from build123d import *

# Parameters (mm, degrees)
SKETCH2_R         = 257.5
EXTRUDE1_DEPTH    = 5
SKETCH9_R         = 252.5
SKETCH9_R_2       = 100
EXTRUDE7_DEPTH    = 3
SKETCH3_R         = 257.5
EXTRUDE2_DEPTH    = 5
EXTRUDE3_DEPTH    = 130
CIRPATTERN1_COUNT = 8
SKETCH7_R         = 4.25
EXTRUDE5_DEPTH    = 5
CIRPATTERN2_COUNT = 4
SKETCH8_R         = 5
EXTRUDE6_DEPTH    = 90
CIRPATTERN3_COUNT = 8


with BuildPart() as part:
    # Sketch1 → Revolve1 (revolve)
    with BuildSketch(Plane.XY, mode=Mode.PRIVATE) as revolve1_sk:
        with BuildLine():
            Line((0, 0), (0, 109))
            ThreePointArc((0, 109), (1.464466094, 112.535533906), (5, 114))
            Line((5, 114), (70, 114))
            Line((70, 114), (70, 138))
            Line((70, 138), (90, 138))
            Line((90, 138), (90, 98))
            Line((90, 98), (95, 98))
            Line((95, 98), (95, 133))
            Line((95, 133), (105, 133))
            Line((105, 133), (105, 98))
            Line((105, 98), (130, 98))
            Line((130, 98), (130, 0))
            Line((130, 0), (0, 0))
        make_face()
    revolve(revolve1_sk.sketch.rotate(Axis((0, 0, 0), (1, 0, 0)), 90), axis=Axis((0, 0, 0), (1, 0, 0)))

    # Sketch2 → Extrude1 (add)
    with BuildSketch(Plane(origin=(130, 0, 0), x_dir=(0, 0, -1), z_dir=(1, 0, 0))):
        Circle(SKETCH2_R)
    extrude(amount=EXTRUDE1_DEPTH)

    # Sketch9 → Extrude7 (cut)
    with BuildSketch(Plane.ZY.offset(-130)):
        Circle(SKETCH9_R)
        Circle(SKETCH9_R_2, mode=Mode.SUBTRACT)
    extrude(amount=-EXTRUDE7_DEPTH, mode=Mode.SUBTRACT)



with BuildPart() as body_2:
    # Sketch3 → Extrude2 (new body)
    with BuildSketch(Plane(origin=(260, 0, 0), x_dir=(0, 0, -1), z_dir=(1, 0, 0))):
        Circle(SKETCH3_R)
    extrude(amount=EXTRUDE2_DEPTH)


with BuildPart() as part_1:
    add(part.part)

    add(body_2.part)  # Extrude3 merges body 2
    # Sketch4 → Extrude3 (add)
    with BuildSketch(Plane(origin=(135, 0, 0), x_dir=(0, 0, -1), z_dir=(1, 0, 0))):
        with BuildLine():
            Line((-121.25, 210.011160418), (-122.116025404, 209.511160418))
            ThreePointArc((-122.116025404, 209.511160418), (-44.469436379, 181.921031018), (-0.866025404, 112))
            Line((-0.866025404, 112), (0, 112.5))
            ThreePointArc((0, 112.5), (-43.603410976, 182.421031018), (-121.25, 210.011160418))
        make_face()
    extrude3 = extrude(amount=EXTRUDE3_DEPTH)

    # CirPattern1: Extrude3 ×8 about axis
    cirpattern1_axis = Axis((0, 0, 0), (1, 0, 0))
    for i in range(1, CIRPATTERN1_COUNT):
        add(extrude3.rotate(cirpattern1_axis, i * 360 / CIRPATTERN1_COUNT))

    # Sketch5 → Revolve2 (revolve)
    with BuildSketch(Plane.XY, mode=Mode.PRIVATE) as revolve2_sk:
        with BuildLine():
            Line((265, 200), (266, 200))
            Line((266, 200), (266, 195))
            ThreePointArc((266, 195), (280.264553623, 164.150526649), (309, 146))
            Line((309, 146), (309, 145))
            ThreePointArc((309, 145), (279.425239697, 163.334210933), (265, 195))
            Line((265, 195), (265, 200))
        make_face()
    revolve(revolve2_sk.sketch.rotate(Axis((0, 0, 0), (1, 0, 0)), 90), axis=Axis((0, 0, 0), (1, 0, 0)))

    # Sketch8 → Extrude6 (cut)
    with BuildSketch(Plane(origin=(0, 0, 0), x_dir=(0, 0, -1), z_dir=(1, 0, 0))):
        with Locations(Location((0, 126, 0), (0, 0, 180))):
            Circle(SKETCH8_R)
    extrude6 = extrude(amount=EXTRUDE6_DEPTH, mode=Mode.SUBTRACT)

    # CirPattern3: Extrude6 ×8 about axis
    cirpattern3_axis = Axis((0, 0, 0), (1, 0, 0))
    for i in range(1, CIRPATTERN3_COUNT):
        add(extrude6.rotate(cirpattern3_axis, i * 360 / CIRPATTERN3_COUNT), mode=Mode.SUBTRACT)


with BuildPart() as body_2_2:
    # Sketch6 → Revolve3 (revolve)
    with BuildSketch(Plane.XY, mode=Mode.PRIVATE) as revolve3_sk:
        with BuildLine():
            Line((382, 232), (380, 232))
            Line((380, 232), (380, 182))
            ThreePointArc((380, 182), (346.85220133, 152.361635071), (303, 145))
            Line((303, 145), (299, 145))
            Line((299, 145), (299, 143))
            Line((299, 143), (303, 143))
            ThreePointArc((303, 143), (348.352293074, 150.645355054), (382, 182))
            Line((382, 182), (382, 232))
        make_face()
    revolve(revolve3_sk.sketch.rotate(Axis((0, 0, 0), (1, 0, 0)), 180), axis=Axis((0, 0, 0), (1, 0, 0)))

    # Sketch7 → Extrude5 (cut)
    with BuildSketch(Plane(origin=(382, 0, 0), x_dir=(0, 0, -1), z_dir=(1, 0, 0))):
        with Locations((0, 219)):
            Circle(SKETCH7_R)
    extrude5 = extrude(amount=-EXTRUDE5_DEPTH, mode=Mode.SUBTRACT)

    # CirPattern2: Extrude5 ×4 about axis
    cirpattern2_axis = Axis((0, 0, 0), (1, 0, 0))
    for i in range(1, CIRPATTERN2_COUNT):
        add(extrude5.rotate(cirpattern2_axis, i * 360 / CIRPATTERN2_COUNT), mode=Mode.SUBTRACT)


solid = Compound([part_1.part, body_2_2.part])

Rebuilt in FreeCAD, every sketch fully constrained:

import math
import FreeCAD as App
import Part
import Sketcher

V = App.Vector
Q = App.Units.Quantity

doc = App.newDocument("Part")
body = doc.addObject("PartDesign::Body", "Body")

# Sketch on XY plane
sketch1 = body.newObject("Sketcher::SketchObject", "Sketch")
sketch1.AttachmentSupport = (doc.getObject("XY_Plane"), [""])
sketch1.MapMode = "FlatFace"
sketch1.addGeometry([
    Part.LineSegment(V(0, 109, 0), V(0, 0, 0)),  # 0
    Part.LineSegment(V(0, 0, 0), V(130, 0, 0)),  # 1
    Part.LineSegment(V(130, 0, 0), V(130, 98, 0)),  # 2
    Part.LineSegment(V(130, 98, 0), V(105, 98, 0)),  # 3
    Part.LineSegment(V(105, 98, 0), V(105, 133, 0)),  # 4
    Part.LineSegment(V(105, 133, 0), V(95, 133, 0)),  # 5
    Part.LineSegment(V(95, 133, 0), V(95, 98, 0)),  # 6
    Part.LineSegment(V(95, 98, 0), V(90, 98, 0)),  # 7
    Part.LineSegment(V(90, 98, 0), V(90, 138, 0)),  # 8
    Part.LineSegment(V(90, 138, 0), V(70, 138, 0)),  # 9
    Part.LineSegment(V(70, 138, 0), V(70, 114, 0)),  # 10
    Part.LineSegment(V(70, 114, 0), V(5, 114, 0)),  # 11
    Part.ArcOfCircle(Part.Circle(V(5, 109, 0), V(0, 0, 1), 5), math.radians(90), math.radians(180)),  # 12
], False)
sketch1.addConstraint([
    Sketcher.Constraint("Coincident", 0, 2, 1, 1),
    Sketcher.Constraint("Coincident", 1, 2, 2, 1),
    Sketcher.Constraint("Coincident", 2, 2, 3, 1),
    Sketcher.Constraint("Coincident", 3, 2, 4, 1),
    Sketcher.Constraint("Coincident", 4, 2, 5, 1),
    Sketcher.Constraint("Coincident", 5, 2, 6, 1),
    Sketcher.Constraint("Coincident", 6, 2, 7, 1),
    Sketcher.Constraint("Coincident", 7, 2, 8, 1),
    Sketcher.Constraint("Coincident", 8, 2, 9, 1),
    Sketcher.Constraint("Coincident", 9, 2, 10, 1),
    Sketcher.Constraint("Coincident", 10, 2, 11, 1),
    Sketcher.Constraint("Tangent", 11, 2, 12, 1),
    Sketcher.Constraint("Tangent", 12, 2, 0, 1),
    Sketcher.Constraint("Vertical", 0),
    Sketcher.Constraint("Horizontal", 1),
    Sketcher.Constraint("Vertical", 2),
    Sketcher.Constraint("Horizontal", 3),
    Sketcher.Constraint("Vertical", 4),
    Sketcher.Constraint("Horizontal", 5),
    Sketcher.Constraint("Vertical", 6),
    Sketcher.Constraint("Horizontal", 7),
    Sketcher.Constraint("Vertical", 8),
    Sketcher.Constraint("Horizontal", 9),
    Sketcher.Constraint("Vertical", 10),
    Sketcher.Constraint("Horizontal", 11),
    Sketcher.Constraint("Coincident", 0, 2, -1, 1),
    Sketcher.Constraint("Horizontal", 3, 2, 6, 2),
    Sketcher.Constraint("Radius", 12, Q("5 mm")),
    Sketcher.Constraint("DistanceX", 1, 1, 1, 2, Q("130 mm")),
    Sketcher.Constraint("DistanceX", 3, 2, 3, 1, Q("25 mm")),
    Sketcher.Constraint("DistanceX", 5, 2, 5, 1, Q("10 mm")),
    Sketcher.Constraint("DistanceX", 7, 2, 7, 1, Q("5 mm")),
    Sketcher.Constraint("DistanceX", 9, 2, 9, 1, Q("20 mm")),
    Sketcher.Constraint("DistanceY", 0, 2, 0, 1, Q("109 mm")),
    Sketcher.Constraint("DistanceY", 2, 1, 2, 2, Q("98 mm")),
    Sketcher.Constraint("DistanceY", 4, 1, 4, 2, Q("35 mm")),
    Sketcher.Constraint("DistanceY", 8, 1, 8, 2, Q("40 mm")),
])
revolution = body.newObject("PartDesign::Revolution", "Revolution")
revolution.Profile = sketch1
revolution.ReferenceAxis = (sketch1, ["H_Axis"])
revolution.Angle = 360

# Sketch on YZ plane
sketch2 = body.newObject("Sketcher::SketchObject", "Sketch001")
sketch2.AttachmentSupport = (doc.getObject("YZ_Plane"), [""])
sketch2.MapMode = "FlatFace"
sketch2.AttachmentOffset = App.Placement(V(0, 0, 130), App.Rotation())
sketch2.addGeometry(Part.Circle(V(0, 0, 0), V(0, 0, 1), 258), False)
sketch2.addConstraint([
    Sketcher.Constraint("Coincident", 0, 3, -1, 1),
    Sketcher.Constraint("Diameter", 0, Q("515 mm")),
])
pad1 = body.newObject("PartDesign::Pad", "Pad")
pad1.Profile = sketch2
pad1.Length = 5

# Sketch on YZ plane
sketch3 = body.newObject("Sketcher::SketchObject", "Sketch002")
sketch3.AttachmentSupport = (doc.getObject("YZ_Plane"), [""])
sketch3.MapMode = "FlatFace"
sketch3.AttachmentOffset = App.Placement(V(0, 0, 130), App.Rotation())
sketch3.addGeometry([
    Part.Circle(V(0, 0, 0), V(0, 0, 1), 252),
    Part.Circle(V(0, 0, 0), V(0, 0, 1), 100),
], False)
sketch3.addConstraint([
    Sketcher.Constraint("Coincident", 0, 3, -1, 1),
    Sketcher.Constraint("Coincident", 1, 3, -1, 1),
    Sketcher.Constraint("Diameter", 0, Q("505 mm")),
    Sketcher.Constraint("Diameter", 1, Q("200 mm")),
])
pocket1 = body.newObject("PartDesign::Pocket", "Pocket")
pocket1.Profile = sketch3
pocket1.Length = 3
pocket1.Reversed = True
body2 = doc.addObject("PartDesign::Body", "Body001")

# Sketch on YZ plane
sketch4 = body2.newObject("Sketcher::SketchObject", "Sketch003")
sketch4.AttachmentSupport = (doc.getObject("YZ_Plane001"), [""])
sketch4.MapMode = "FlatFace"
sketch4.AttachmentOffset = App.Placement(V(0, 0, 260), App.Rotation())
sketch4.addGeometry(Part.Circle(V(0, 0, 0), V(0, 0, 1), 258), False)
sketch4.addConstraint([
    Sketcher.Constraint("Coincident", 0, 3, -1, 1),
    Sketcher.Constraint("Diameter", 0, Q("515 mm")),
])
pad2 = body2.newObject("PartDesign::Pad", "Pad001")
pad2.Profile = sketch4
pad2.Length = 5
body.AllowCompound = True
doc.recompute()

boolean = body.newObject("PartDesign::Boolean", "Boolean")
boolean.Type = "Fuse"
boolean.addObjects([body2])

# Sketch on YZ plane
sketch5 = body.newObject("Sketcher::SketchObject", "Sketch004")
sketch5.AttachmentSupport = (doc.getObject("YZ_Plane"), [""])
sketch5.MapMode = "FlatFace"
sketch5.AttachmentOffset = App.Placement(V(0, 0, 135), App.Rotation())
sketch5.addGeometry([
    Part.LineSegment(V(210, 121.2, 0), V(209.5, 122.1, 0)),
    Part.ArcOfCircle(Part.Circle(V(84.5, 122.8, 0), V(0, 0, 1), 125), math.radians(-77), math.radians(0)),
    Part.LineSegment(V(112, 0.9, 0), V(112.5, 0, 0)),
    Part.ArcOfCircle(Part.Circle(V(85, 121.9, 0), V(0, 0, 1), 125), math.radians(-77), math.radians(0)),
], False)
sketch5.addConstraint([
    Sketcher.Constraint("Coincident", 0, 2, 1, 2),
    Sketcher.Constraint("Coincident", 1, 1, 2, 1),
    Sketcher.Constraint("Coincident", 2, 2, 3, 1),
    Sketcher.Constraint("Coincident", 3, 2, 0, 1),
    Sketcher.Constraint("Equal", 1, 3),
    Sketcher.Constraint("PointOnObject", 2, 2, -1),
    Sketcher.Constraint("Parallel", 0, 2),
    Sketcher.Constraint("Equal", 0, 2),
    Sketcher.Constraint("Radius", 1, Q("125 mm")),
    Sketcher.Constraint("Angle", 0, Q("120 deg")),
    Sketcher.Constraint("Distance", 0, Q("1 mm")),
    Sketcher.Constraint("DistanceX", -1, 1, 1, 1, Q("112 mm")),
    Sketcher.Constraint("DistanceY", -1, 1, 3, 2, Q("121.25 mm")),
    Sketcher.Constraint("DistanceY", -1, 1, 3, 3, Q("121.94043 mm")),
])
pad3 = body.newObject("PartDesign::Pad", "Pad002")
pad3.Profile = sketch5
pad3.Length = 130
doc.recompute()

polarpattern = body.newObject("PartDesign::PolarPattern", "PolarPattern")
polarpattern.Originals = [pad3]
polarpattern.Axis = (doc.getObject("X_Axis"), [""])
polarpattern.Angle = 360
polarpattern.Occurrences = 8
body.Tip = polarpattern

# Sketch on XY plane
sketch6 = body.newObject("Sketcher::SketchObject", "Sketch005")
sketch6.AttachmentSupport = (doc.getObject("XY_Plane"), [""])
sketch6.MapMode = "FlatFace"
sketch6.addGeometry([
    Part.LineSegment(V(266, 200, 0), V(265, 200, 0)),  # 0
    Part.LineSegment(V(265, 200, 0), V(265, 195, 0)),  # 1
    Part.ArcOfCircle(Part.Circle(V(324.5, 203, 0), V(0, 0, 1), 60), math.radians(-172), math.radians(-105)),  # 2
    Part.LineSegment(V(309, 145, 0), V(309, 146, 0)),  # 3
    Part.ArcOfCircle(Part.Circle(V(325.4, 203.7, 0), V(0, 0, 1), 60), math.radians(-172), math.radians(-106)),  # 4
    Part.LineSegment(V(266, 195, 0), V(266, 200, 0)),  # 5
], False)
sketch6.addConstraint([
    Sketcher.Constraint("Coincident", 0, 2, 1, 1),
    Sketcher.Constraint("Coincident", 1, 2, 2, 1),
    Sketcher.Constraint("Coincident", 2, 2, 3, 1),
    Sketcher.Constraint("Coincident", 3, 2, 4, 2),
    Sketcher.Constraint("Coincident", 4, 1, 5, 1),
    Sketcher.Constraint("Coincident", 5, 2, 0, 1),
    Sketcher.Constraint("Horizontal", 0),
    Sketcher.Constraint("Vertical", 1),
    Sketcher.Constraint("Vertical", 3),
    Sketcher.Constraint("Vertical", 5),
    Sketcher.Constraint("Equal", 2, 4),
    Sketcher.Constraint("Horizontal", 1, 2, 4, 1),
    Sketcher.Constraint("Equal", 0, 3),
    Sketcher.Constraint("Radius", 2, Q("60 mm")),
    Sketcher.Constraint("DistanceX", 0, 2, 0, 1, Q("1 mm")),
    Sketcher.Constraint("DistanceY", 1, 2, 1, 1, Q("5 mm")),
    Sketcher.Constraint("DistanceX", -1, 1, 0, 2, Q("265 mm")),
    Sketcher.Constraint("DistanceY", -1, 1, 0, 2, Q("200 mm")),
    Sketcher.Constraint("DistanceX", -1, 1, 2, 2, Q("309 mm")),
    Sketcher.Constraint("DistanceY", -1, 1, 2, 2, Q("145 mm")),
])
revolution2 = body.newObject("PartDesign::Revolution", "Revolution001")
revolution2.Profile = sketch6
revolution2.ReferenceAxis = (sketch6, ["H_Axis"])
revolution2.Angle = 360

# Sketch on YZ plane
sketch7 = body.newObject("Sketcher::SketchObject", "Sketch006")
sketch7.AttachmentSupport = (doc.getObject("YZ_Plane"), [""])
sketch7.MapMode = "FlatFace"
sketch7.addGeometry(Part.Circle(V(126, 0, 0), V(0, 0, 1), 5), False)
sketch7.addConstraint([
    Sketcher.Constraint("PointOnObject", 0, 3, -1),
    Sketcher.Constraint("Diameter", 0, Q("10 mm")),
    Sketcher.Constraint("DistanceX", -1, 1, 0, 3, Q("126 mm")),
])
pocket2 = body.newObject("PartDesign::Pocket", "Pocket001")
pocket2.Profile = sketch7
pocket2.Length = 90
pocket2.Reversed = True
doc.recompute()

polarpattern2 = body.newObject("PartDesign::PolarPattern", "PolarPattern001")
polarpattern2.Originals = [pocket2]
polarpattern2.Axis = (doc.getObject("X_Axis"), [""])
polarpattern2.Angle = 360
polarpattern2.Occurrences = 8
body.Tip = polarpattern2
body3 = doc.addObject("PartDesign::Body", "Body002")

# Sketch on XY plane
sketch8 = body3.newObject("Sketcher::SketchObject", "Sketch007")
sketch8.AttachmentSupport = (doc.getObject("XY_Plane002"), [""])
sketch8.MapMode = "FlatFace"
sketch8.addGeometry([
    Part.LineSegment(V(382, 232, 0), V(380, 232, 0)),  # 0
    Part.LineSegment(V(380, 232, 0), V(380, 182, 0)),  # 1
    Part.ArcOfCircle(Part.Circle(V(312.2, 224.5, 0), V(0, 0, 1), 80), math.radians(-97), math.radians(-32)),  # 2
    Part.LineSegment(V(303, 145, 0), V(299, 145, 0)),  # 3
    Part.LineSegment(V(299, 145, 0), V(299, 143, 0)),  # 4
    Part.LineSegment(V(299, 143, 0), V(303, 143, 0)),  # 5
    Part.ArcOfCircle(Part.Circle(V(312.9, 222.4, 0), V(0, 0, 1), 80), math.radians(-97), math.radians(-30)),  # 6
    Part.LineSegment(V(382, 182, 0), V(382, 232, 0)),  # 7
], False)
sketch8.addConstraint([
    Sketcher.Constraint("Coincident", 0, 2, 1, 1),
    Sketcher.Constraint("Coincident", 1, 2, 2, 2),
    Sketcher.Constraint("Coincident", 2, 1, 3, 1),
    Sketcher.Constraint("Coincident", 3, 2, 4, 1),
    Sketcher.Constraint("Coincident", 4, 2, 5, 1),
    Sketcher.Constraint("Coincident", 5, 2, 6, 1),
    Sketcher.Constraint("Coincident", 6, 2, 7, 1),
    Sketcher.Constraint("Coincident", 7, 2, 0, 1),
    Sketcher.Constraint("Horizontal", 0),
    Sketcher.Constraint("Vertical", 1),
    Sketcher.Constraint("Horizontal", 3),
    Sketcher.Constraint("Vertical", 4),
    Sketcher.Constraint("Horizontal", 5),
    Sketcher.Constraint("Vertical", 7),
    Sketcher.Constraint("Equal", 2, 6),
    Sketcher.Constraint("Horizontal", 1, 2, 6, 2),
    Sketcher.Constraint("Vertical", 2, 1, 5, 2),
    Sketcher.Constraint("Equal", 0, 4),
    Sketcher.Constraint("Radius", 2, Q("80 mm")),
    Sketcher.Constraint("DistanceX", 0, 2, 0, 1, Q("2 mm")),
    Sketcher.Constraint("DistanceX", 3, 2, 3, 1, Q("4 mm")),
    Sketcher.Constraint("DistanceY", 1, 2, 1, 1, Q("50 mm")),
    Sketcher.Constraint("DistanceX", -1, 1, 0, 2, Q("380 mm")),
    Sketcher.Constraint("DistanceY", -1, 1, 0, 2, Q("232 mm")),
    Sketcher.Constraint("DistanceX", -1, 1, 2, 1, Q("303 mm")),
    Sketcher.Constraint("DistanceY", -1, 1, 2, 1, Q("145 mm")),
])
revolution3 = body3.newObject("PartDesign::Revolution", "Revolution002")
revolution3.Profile = sketch8
revolution3.ReferenceAxis = (sketch8, ["H_Axis"])
revolution3.Angle = 360

# Sketch on YZ plane
sketch9 = body3.newObject("Sketcher::SketchObject", "Sketch008")
sketch9.AttachmentSupport = (doc.getObject("YZ_Plane002"), [""])
sketch9.MapMode = "FlatFace"
sketch9.AttachmentOffset = App.Placement(V(0, 0, 382), App.Rotation())
sketch9.addGeometry(Part.Circle(V(219, 0, 0), V(0, 0, 1), 4.2), False)
sketch9.addConstraint([
    Sketcher.Constraint("PointOnObject", 0, 3, -1),
    Sketcher.Constraint("Diameter", 0, Q("8.5 mm")),
    Sketcher.Constraint("DistanceX", -1, 1, 0, 3, Q("219 mm")),
])
pocket3 = body3.newObject("PartDesign::Pocket", "Pocket002")
pocket3.Profile = sketch9
pocket3.Length = 5
doc.recompute()

polarpattern3 = body3.newObject("PartDesign::PolarPattern", "PolarPattern002")
polarpattern3.Originals = [pocket3]
polarpattern3.Axis = (doc.getObject("X_Axis002"), [""])
polarpattern3.Angle = 360
polarpattern3.Occurrences = 4
body3.Tip = polarpattern3

doc.recompute()
